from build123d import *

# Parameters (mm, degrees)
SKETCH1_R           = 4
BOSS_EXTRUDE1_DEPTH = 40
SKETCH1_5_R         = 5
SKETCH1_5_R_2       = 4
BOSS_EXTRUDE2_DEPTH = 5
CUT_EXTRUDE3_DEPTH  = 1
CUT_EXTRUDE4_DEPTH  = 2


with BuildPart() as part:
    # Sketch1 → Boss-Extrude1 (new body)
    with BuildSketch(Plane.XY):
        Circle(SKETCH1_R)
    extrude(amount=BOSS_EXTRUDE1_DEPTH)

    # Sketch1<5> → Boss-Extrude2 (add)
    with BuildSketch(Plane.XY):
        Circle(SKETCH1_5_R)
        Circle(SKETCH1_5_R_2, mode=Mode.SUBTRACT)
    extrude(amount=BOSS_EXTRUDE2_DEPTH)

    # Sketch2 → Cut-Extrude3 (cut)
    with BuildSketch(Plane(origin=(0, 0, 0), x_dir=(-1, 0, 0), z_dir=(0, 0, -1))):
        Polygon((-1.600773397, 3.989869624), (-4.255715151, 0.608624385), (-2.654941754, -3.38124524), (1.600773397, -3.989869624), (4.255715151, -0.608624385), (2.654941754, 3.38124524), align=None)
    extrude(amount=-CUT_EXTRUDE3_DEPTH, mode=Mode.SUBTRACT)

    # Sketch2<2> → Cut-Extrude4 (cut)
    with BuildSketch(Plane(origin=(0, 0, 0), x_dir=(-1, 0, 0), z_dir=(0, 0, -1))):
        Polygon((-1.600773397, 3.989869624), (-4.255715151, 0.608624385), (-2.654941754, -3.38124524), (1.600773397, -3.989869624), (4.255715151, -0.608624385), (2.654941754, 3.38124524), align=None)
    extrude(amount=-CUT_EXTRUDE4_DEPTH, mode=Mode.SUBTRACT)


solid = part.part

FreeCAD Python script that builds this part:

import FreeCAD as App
import Part
import Sketcher

V = App.Vector
Q = App.Units.Quantity


def add_polygon(sketch, points):
    """Adds a closed chain of lines whose ends are joined by coincident constraints."""
    first, n = sketch.GeometryCount, len(points)
    for a, b in zip(points, points[1:] + points[:1]):
        sketch.addGeometry(Part.LineSegment(App.Vector(*a, 0), App.Vector(*b, 0)), False)
    for i in range(n):
        sketch.addConstraint(Sketcher.Constraint("Coincident", first + i, 2, first + (i + 1) % n, 1))

doc = App.newDocument("Part")
body = doc.addObject("PartDesign::Body", "Body")

sketch1 = body.newObject("Sketcher::SketchObject", "Sketch")
sketch1.AttachmentSupport = (doc.getObject("XY_Plane"), [""])
sketch1.MapMode = "FlatFace"
sketch1.addGeometry(Part.Circle(V(0, 0, 0), V(0, 0, 1), 4), False)
sketch1.addConstraint([
    Sketcher.Constraint("Coincident", 0, 3, -1, 1),
    Sketcher.Constraint("Diameter", 0, Q("8 mm")),
])
pad1 = body.newObject("PartDesign::Pad", "Pad")
pad1.Profile = sketch1
pad1.Length = 40

sketch2 = body.newObject("Sketcher::SketchObject", "Sketch001")
sketch2.AttachmentSupport = (doc.getObject("XY_Plane"), [""])
sketch2.MapMode = "FlatFace"
sketch2.addGeometry([
    Part.Circle(V(0, 0, 0), V(0, 0, 1), 5),
    Part.Circle(V(0, 0, 0), V(0, 0, 1), 4),
], False)
sketch2.addConstraint([
    Sketcher.Constraint("Coincident", 0, 3, -1, 1),
    Sketcher.Constraint("Coincident", 1, 3, -1, 1),
    Sketcher.Constraint("Diameter", 0, Q("10 mm")),
    Sketcher.Constraint("Diameter", 1, Q("8 mm")),
])
pad2 = body.newObject("PartDesign::Pad", "Pad001")
pad2.Profile = sketch2
pad2.Length = 5

sketch3 = body.newObject("Sketcher::SketchObject", "Sketch002")
sketch3.AttachmentSupport = (doc.getObject("XY_Plane"), [""])
sketch3.MapMode = "FlatFace"
add_polygon(sketch3, [(1.6, 4), (4.3, 0.6), (2.7, -3.4), (-1.6, -4), (-4.3, -0.6), (-2.7, 3.4)])
sketch3.addConstraint([
    Sketcher.Constraint("Symmetric", 0, 2, 3, 2, -1, 1),
    Sketcher.Constraint("Symmetric", 1, 2, 4, 2, -1, 1),
    Sketcher.Constraint("Symmetric", 2, 2, 5, 2, -1, 1),
    Sketcher.Constraint("Equal", 0, 1),
    Sketcher.Constraint("Equal", 1, 2),
    Sketcher.Constraint("DistanceX", -1, 1, 1, 2, Q("2.654942 mm")),
    Sketcher.Constraint("DistanceY", 2, 2, -1, 1, Q("3.98987 mm")),
    Sketcher.Constraint("DistanceY", 1, 2, 0, 2, Q("3.98987 mm")),
    Sketcher.Constraint("DistanceX", 2, 2, 0, 2, Q("5.856489 mm")),
])
pocket1 = body.newObject("PartDesign::Pocket", "Pocket")
pocket1.Profile = sketch3
pocket1.Length = 1
pocket1.Reversed = True

sketch4 = body.newObject("Sketcher::SketchObject", "Sketch003")
sketch4.AttachmentSupport = (doc.getObject("XY_Plane"), [""])
sketch4.MapMode = "FlatFace"
add_polygon(sketch4, [(1.6, 4), (4.3, 0.6), (2.7, -3.4), (-1.6, -4), (-4.3, -0.6), (-2.7, 3.4)])
sketch4.addConstraint([
    Sketcher.Constraint("Symmetric", 0, 2, 3, 2, -1, 1),
    Sketcher.Constraint("Symmetric", 1, 2, 4, 2, -1, 1),
    Sketcher.Constraint("Symmetric", 2, 2, 5, 2, -1, 1),
    Sketcher.Constraint("Equal", 0, 1),
    Sketcher.Constraint("Equal", 1, 2),
    Sketcher.Constraint("DistanceX", -1, 1, 1, 2, Q("2.654942 mm")),
    Sketcher.Constraint("DistanceY", 2, 2, -1, 1, Q("3.98987 mm")),
    Sketcher.Constraint("DistanceY", 1, 2, 0, 2, Q("3.98987 mm")),
    Sketcher.Constraint("DistanceX", 2, 2, 0, 2, Q("5.856489 mm")),
])
pocket2 = body.newObject("PartDesign::Pocket", "Pocket001")
pocket2.Profile = sketch4
pocket2.Length = 2
pocket2.Reversed = True

doc.recompute()
